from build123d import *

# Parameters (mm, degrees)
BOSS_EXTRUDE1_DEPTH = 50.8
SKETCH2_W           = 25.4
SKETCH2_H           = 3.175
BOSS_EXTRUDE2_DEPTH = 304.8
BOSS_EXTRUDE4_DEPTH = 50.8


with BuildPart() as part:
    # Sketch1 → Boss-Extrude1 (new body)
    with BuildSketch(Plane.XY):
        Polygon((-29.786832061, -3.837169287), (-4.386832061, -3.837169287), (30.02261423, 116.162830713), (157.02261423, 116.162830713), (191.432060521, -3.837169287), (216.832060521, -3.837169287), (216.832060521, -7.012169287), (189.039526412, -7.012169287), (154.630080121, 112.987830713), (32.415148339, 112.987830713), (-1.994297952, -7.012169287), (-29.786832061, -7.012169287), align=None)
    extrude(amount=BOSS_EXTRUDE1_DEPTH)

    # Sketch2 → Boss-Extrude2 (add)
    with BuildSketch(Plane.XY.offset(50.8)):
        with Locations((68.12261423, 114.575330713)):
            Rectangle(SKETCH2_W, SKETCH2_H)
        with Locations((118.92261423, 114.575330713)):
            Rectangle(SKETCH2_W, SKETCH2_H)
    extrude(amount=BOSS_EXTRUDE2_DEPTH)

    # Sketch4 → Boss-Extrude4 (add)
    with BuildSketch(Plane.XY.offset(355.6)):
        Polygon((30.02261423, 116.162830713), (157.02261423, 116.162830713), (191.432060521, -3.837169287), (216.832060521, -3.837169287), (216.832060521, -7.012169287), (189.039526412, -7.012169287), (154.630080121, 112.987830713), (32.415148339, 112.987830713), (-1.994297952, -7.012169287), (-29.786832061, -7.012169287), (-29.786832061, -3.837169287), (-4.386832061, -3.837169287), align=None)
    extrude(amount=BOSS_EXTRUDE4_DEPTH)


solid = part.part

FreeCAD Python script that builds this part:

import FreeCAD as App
import Part
import Sketcher
Q = App.Units.Quantity


def add_polygon(sketch, points):
    """Adds a closed chain of lines whose ends are joined by coincident constraints."""
    first, n = sketch.GeometryCount, len(points)
    for a, b in zip(points, points[1:] + points[:1]):
        sketch.addGeometry(Part.LineSegment(App.Vector(*a, 0), App.Vector(*b, 0)), False)
    for i in range(n):
        sketch.addConstraint(Sketcher.Constraint("Coincident", first + i, 2, first + (i + 1) % n, 1))

doc = App.newDocument("Part")
body = doc.addObject("PartDesign::Body", "Body")

# Sketch on XY plane
sketch1 = body.newObject("Sketcher::SketchObject", "Sketch")
sketch1.AttachmentSupport = (doc.getObject("XY_Plane"), [""])
sketch1.MapMode = "FlatFace"
add_polygon(sketch1, [(-4.4, -3.8), (-29.8, -3.8), (-29.8, -7), (-2, -7), (32.4, 113), (154.6, 113), (189, -7), (216.8, -7), (216.8, -3.8), (191.4, -3.8), (157, 116.2), (30, 116.2)])  # lines 0-11
sketch1.addConstraint(Sketcher.Constraint("Horizontal", 0))
sketch1.addConstraint(Sketcher.Constraint("Vertical", 1))
sketch1.addConstraint(Sketcher.Constraint("Horizontal", 2))
sketch1.addConstraint(Sketcher.Constraint("Horizontal", 4))
sketch1.addConstraint(Sketcher.Constraint("Horizontal", 6))
sketch1.addConstraint(Sketcher.Constraint("Vertical", 7))
sketch1.addConstraint(Sketcher.Constraint("Horizontal", 8))
sketch1.addConstraint(Sketcher.Constraint("Horizontal", 10))
sketch1.addConstraint(Sketcher.Constraint("Parallel", 5, 9))
sketch1.addConstraint(Sketcher.Constraint("Parallel", 3, 11))
sketch1.addConstraint(Sketcher.Constraint("Horizontal", 2, 2, 5, 2))
sketch1.addConstraint(Sketcher.Constraint("Horizontal", 0, 2, 7, 2))
sketch1.addConstraint(Sketcher.Constraint("Equal", 2, 6))
sketch1.addConstraint(Sketcher.Constraint("Equal", 0, 8))
sketch1.addConstraint(Sketcher.Constraint("Equal", 3, 5))
sketch1.addConstraint(Sketcher.Constraint("Equal", 5, 9))
sketch1.addConstraint(Sketcher.Constraint("DistanceX", 0, 2, 0, 1, Q("1 in")))
sketch1.addConstraint(Sketcher.Constraint("DistanceX", 10, 2, 10, 1, Q("5 in")))
sketch1.addConstraint(Sketcher.Constraint("Angle", 3, Q("74 deg")))
sketch1.addConstraint(Sketcher.Constraint("DistanceY", 1, 2, 1, 1, Q("0.125 in")))
sketch1.addConstraint(Sketcher.Constraint("DistanceX", 4, 1, 4, 2, Q("122.214932 mm")))
sketch1.addConstraint(Sketcher.Constraint("DistanceY", 2, 2, 3, 2, Q("120 mm")))
sketch1.addConstraint(Sketcher.Constraint("DistanceY", 0, 2, -1, 1, Q("3.837169 mm")))
sketch1.addConstraint(Sketcher.Constraint("DistanceX", -1, 1, 3, 2, Q("32.415148 mm")))
pad1 = body.newObject("PartDesign::Pad", "Pad")
pad1.Profile = sketch1
pad1.Length = Q("2 in")

# Sketch on XY plane
sketch2 = body.newObject("Sketcher::SketchObject", "Sketch001")
sketch2.AttachmentSupport = (doc.getObject("XY_Plane"), [""])
sketch2.MapMode = "FlatFace"
sketch2.AttachmentOffset = App.Placement(App.Vector(0, 0, 2 * 25.4), App.Rotation())
add_polygon(sketch2, [(55.4, 116.2), (55.4, 113), (80.8, 113), (80.8, 116.2)])  # lines 0-3
add_polygon(sketch2, [(106.2, 116.2), (106.2, 113), (131.6, 113), (131.6, 116.2)])  # lines 4-7
sketch2.addConstraint(Sketcher.Constraint("Vertical", 0))
sketch2.addConstraint(Sketcher.Constraint("Horizontal", 1))
sketch2.addConstraint(Sketcher.Constraint("Vertical", 2))
sketch2.addConstraint(Sketcher.Constraint("Horizontal", 3))
sketch2.addConstraint(Sketcher.Constraint("Vertical", 4))
sketch2.addConstraint(Sketcher.Constraint("Horizontal", 5))
sketch2.addConstraint(Sketcher.Constraint("Vertical", 6))
sketch2.addConstraint(Sketcher.Constraint("Horizontal", 7))
sketch2.addConstraint(Sketcher.Constraint("Horizontal", 1, 2, 4, 2))
sketch2.addConstraint(Sketcher.Constraint("Horizontal", 3, 2, 6, 2))
sketch2.addConstraint(Sketcher.Constraint("Equal", 3, 5))
sketch2.addConstraint(Sketcher.Constraint("DistanceX", 1, 1, 1, 2, Q("1 in")))
sketch2.addConstraint(Sketcher.Constraint("DistanceX", 1, 2, 4, 2, Q("1 in")))
sketch2.addConstraint(Sketcher.Constraint("DistanceY", 0, 2, 0, 1, Q("0.125 in")))
sketch2.addConstraint(Sketcher.Constraint("DistanceY", -1, 1, 0, 2, Q("112.987831 mm")))
sketch2.addConstraint(Sketcher.Constraint("DistanceX", -1, 1, 0, 2, Q("55.422614 mm")))
pad2 = body.newObject("PartDesign::Pad", "Pad001")
pad2.Profile = sketch2
pad2.Length = Q("12 in")

# Sketch on XY plane
sketch3 = body.newObject("Sketcher::SketchObject", "Sketch002")
sketch3.AttachmentSupport = (doc.getObject("XY_Plane"), [""])
sketch3.MapMode = "FlatFace"
sketch3.AttachmentOffset = App.Placement(App.Vector(0, 0, 14 * 25.4), App.Rotation())
add_polygon(sketch3, [(157, 116.2), (30, 116.2), (-4.4, -3.8), (-29.8, -3.8), (-29.8, -7), (-2, -7), (32.4, 113), (154.6, 113), (189, -7), (216.8, -7), (216.8, -3.8), (191.4, -3.8)])  # lines 0-11
sketch3.addConstraint(Sketcher.Constraint("Horizontal", 0))
sketch3.addConstraint(Sketcher.Constraint("Horizontal", 2))
sketch3.addConstraint(Sketcher.Constraint("Vertical", 3))
sketch3.addConstraint(Sketcher.Constraint("Horizontal", 4))
sketch3.addConstraint(Sketcher.Constraint("Horizontal", 6))
sketch3.addConstraint(Sketcher.Constraint("Horizontal", 8))
sketch3.addConstraint(Sketcher.Constraint("Vertical", 9))
sketch3.addConstraint(Sketcher.Constraint("Horizontal", 10))
sketch3.addConstraint(Sketcher.Constraint("Parallel", 1, 5))
sketch3.addConstraint(Sketcher.Constraint("Parallel", 7, 11))
sketch3.addConstraint(Sketcher.Constraint("Horizontal", 4, 2, 7, 2))
sketch3.addConstraint(Sketcher.Constraint("Horizontal", 2, 2, 9, 2))
sketch3.addConstraint(Sketcher.Constraint("Equal", 4, 8))
sketch3.addConstraint(Sketcher.Constraint("Equal", 2, 10))
sketch3.addConstraint(Sketcher.Constraint("Equal", 1, 5))
sketch3.addConstraint(Sketcher.Constraint("Equal", 5, 7))
sketch3.addConstraint(Sketcher.Constraint("DistanceX", 0, 2, 0, 1, Q("5 in")))
sketch3.addConstraint(Sketcher.Constraint("DistanceX", 2, 2, 2, 1, Q("1 in")))
sketch3.addConstraint(Sketcher.Constraint("Angle", 1, Q("-106 deg")))
sketch3.addConstraint(Sketcher.Constraint("DistanceY", 3, 2, 3, 1, Q("0.125 in")))
sketch3.addConstraint(Sketcher.Constraint("DistanceX", 6, 1, 6, 2, Q("122.214932 mm")))
sketch3.addConstraint(Sketcher.Constraint("DistanceY", 1, 2, 0, 2, Q("120 mm")))
sketch3.addConstraint(Sketcher.Constraint("DistanceY", -1, 1, 0, 2, Q("116.162831 mm")))
sketch3.addConstraint(Sketcher.Constraint("DistanceX", -1, 1, 5, 2, Q("32.415148 mm")))
pad3 = body.newObject("PartDesign::Pad", "Pad002")
pad3.Profile = sketch3
pad3.Length = Q("2 in")

doc.recompute()
